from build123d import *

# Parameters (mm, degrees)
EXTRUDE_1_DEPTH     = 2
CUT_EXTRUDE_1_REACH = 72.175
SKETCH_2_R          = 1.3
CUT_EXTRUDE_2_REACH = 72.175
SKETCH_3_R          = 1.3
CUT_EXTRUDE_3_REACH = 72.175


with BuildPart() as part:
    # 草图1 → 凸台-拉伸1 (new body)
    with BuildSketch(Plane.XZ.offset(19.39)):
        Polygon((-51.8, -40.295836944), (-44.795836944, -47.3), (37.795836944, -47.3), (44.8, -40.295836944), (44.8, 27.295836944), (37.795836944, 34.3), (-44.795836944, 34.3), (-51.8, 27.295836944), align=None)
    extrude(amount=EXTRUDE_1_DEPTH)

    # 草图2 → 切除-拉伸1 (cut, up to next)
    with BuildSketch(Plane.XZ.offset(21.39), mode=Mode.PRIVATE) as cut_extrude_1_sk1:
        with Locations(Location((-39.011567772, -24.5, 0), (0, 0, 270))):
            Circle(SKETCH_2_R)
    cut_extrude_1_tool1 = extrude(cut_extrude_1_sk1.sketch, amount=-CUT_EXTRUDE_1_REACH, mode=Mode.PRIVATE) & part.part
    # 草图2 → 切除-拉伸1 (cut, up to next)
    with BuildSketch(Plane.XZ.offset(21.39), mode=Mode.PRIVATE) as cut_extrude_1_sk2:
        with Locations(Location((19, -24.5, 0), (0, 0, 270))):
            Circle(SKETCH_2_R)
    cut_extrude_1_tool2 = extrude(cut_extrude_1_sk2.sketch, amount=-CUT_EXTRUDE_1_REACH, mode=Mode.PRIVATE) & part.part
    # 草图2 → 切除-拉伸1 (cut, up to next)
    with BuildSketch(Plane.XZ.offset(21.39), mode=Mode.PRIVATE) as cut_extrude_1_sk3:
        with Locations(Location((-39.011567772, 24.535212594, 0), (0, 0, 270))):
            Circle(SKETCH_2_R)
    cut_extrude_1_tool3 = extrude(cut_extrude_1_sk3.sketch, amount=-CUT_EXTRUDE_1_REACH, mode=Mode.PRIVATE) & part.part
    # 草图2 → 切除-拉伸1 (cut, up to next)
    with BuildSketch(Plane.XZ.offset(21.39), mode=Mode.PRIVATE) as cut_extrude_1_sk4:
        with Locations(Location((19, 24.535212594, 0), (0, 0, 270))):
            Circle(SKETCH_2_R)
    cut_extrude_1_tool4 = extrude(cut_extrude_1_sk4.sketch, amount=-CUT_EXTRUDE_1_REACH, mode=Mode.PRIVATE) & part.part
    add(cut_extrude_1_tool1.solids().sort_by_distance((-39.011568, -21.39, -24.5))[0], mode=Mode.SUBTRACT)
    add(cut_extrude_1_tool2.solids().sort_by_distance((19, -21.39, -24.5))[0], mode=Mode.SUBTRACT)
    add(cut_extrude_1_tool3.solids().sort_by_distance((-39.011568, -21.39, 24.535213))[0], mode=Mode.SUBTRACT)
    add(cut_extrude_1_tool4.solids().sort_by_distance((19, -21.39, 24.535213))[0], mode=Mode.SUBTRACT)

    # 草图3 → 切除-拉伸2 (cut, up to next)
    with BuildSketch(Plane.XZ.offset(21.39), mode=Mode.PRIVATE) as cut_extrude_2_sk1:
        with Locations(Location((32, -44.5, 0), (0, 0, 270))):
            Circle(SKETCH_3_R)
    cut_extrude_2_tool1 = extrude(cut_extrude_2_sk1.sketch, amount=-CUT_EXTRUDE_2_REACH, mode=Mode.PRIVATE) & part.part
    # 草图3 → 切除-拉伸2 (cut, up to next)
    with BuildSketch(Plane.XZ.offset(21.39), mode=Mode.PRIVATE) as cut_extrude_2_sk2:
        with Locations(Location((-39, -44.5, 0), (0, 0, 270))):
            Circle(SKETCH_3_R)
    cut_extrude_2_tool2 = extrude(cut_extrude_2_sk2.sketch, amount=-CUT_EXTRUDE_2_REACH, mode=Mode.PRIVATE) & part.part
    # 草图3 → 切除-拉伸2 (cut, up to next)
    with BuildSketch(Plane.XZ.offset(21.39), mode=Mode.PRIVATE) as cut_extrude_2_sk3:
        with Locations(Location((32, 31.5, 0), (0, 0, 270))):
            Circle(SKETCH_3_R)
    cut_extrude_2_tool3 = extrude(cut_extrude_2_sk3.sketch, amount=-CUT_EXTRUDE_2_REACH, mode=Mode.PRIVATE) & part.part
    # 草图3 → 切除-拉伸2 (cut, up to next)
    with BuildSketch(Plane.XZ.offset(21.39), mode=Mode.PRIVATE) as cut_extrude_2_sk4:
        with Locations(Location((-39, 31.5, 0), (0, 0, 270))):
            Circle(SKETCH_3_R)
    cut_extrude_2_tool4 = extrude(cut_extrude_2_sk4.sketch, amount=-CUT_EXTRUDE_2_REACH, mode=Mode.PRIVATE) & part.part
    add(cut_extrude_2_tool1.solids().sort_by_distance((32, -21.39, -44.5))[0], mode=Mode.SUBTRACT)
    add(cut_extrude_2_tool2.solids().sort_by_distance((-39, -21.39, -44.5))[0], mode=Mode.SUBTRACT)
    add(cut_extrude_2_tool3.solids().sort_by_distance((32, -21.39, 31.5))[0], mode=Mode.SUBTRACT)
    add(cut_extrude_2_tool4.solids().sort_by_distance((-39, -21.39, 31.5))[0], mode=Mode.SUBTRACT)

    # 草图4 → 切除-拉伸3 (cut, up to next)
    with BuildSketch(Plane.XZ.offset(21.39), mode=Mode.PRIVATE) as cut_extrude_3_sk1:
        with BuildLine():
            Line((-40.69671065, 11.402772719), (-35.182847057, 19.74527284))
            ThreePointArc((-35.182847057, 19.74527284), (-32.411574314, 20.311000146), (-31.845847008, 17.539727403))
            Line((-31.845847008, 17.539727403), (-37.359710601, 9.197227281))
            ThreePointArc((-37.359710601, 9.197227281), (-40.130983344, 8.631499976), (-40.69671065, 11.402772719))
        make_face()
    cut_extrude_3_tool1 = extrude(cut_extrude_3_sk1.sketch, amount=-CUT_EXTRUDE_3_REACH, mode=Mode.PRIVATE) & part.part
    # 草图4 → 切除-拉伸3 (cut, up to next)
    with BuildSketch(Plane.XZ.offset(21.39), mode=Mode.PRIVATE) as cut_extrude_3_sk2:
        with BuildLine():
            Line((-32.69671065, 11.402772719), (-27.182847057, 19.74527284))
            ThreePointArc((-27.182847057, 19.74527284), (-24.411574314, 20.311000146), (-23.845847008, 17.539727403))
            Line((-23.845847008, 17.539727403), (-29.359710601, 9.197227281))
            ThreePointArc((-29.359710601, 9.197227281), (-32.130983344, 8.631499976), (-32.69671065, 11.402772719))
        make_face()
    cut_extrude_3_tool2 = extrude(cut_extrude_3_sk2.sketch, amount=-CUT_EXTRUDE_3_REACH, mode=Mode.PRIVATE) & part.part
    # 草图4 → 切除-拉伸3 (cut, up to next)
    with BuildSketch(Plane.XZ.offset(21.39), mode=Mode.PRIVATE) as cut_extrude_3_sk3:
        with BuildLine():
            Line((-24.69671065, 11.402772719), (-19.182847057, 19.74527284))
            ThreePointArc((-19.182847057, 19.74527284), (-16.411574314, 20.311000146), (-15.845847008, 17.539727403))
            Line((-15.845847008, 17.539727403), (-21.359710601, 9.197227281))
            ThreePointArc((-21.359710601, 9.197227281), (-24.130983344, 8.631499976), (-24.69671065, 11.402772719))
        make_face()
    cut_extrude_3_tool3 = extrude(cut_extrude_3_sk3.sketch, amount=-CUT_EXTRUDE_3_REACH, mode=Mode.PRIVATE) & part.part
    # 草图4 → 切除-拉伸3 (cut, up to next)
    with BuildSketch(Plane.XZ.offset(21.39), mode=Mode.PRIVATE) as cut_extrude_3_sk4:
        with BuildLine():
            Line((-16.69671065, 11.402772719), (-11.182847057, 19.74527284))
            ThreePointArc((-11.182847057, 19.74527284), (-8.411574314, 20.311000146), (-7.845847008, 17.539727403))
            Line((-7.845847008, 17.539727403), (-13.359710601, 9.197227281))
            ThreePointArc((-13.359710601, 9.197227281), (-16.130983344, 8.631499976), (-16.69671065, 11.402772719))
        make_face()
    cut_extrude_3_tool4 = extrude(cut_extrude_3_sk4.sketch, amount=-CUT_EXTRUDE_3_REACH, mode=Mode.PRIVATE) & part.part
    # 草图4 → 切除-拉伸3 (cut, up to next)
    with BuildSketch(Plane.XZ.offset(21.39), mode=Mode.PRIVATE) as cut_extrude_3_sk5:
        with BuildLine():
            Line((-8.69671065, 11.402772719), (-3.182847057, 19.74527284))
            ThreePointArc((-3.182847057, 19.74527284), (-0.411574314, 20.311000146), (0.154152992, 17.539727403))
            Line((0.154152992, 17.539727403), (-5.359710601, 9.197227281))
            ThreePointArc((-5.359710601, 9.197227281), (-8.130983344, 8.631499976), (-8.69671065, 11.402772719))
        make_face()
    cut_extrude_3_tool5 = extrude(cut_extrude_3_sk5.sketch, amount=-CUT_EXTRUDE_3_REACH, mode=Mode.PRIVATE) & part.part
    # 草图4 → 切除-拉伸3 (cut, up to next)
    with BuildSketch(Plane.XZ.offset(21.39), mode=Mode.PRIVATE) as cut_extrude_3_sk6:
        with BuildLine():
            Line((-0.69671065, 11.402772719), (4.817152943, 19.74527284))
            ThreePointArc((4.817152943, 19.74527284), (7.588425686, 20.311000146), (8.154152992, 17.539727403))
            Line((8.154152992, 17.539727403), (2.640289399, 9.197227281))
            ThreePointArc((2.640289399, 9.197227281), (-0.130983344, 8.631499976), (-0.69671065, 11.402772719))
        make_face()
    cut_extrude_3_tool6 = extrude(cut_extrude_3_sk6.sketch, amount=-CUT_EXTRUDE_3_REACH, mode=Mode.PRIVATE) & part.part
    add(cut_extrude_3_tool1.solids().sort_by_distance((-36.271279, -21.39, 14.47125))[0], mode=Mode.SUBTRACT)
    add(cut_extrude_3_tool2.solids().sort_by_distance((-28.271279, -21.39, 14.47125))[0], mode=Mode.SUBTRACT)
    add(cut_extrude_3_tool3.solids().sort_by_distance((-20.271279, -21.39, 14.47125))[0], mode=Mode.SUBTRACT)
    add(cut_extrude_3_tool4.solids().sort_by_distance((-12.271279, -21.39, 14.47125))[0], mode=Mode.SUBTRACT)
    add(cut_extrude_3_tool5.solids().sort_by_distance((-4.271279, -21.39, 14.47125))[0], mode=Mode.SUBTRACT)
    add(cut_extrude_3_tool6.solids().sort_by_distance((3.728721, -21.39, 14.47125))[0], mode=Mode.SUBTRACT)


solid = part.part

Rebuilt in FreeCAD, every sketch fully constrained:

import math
import FreeCAD as App
import Part
import Sketcher
from FreeCAD import Vector
Q = App.Units.Quantity


def add_polygon(sketch, points):
    """Adds a closed chain of lines whose ends are joined by coincident constraints."""
    first, n = sketch.GeometryCount, len(points)
    for a, b in zip(points, points[1:] + points[:1]):
        sketch.addGeometry(Part.LineSegment(App.Vector(*a, 0), App.Vector(*b, 0)), False)
    for i in range(n):
        sketch.addConstraint(Sketcher.Constraint("Coincident", first + i, 2, first + (i + 1) % n, 1))

doc = App.newDocument("Part")
body = doc.addObject("PartDesign::Body", "Body")

# Sketch on XZ plane
sketch1 = doc.addObject("Sketcher::SketchObject", "Sketch")
body.addObject(sketch1)
sketch1.AttachmentSupport = (doc.XZ_Plane, [""])
sketch1.MapMode = "FlatFace"
sketch1.AttachmentOffset = App.Placement(Vector(0, 0, 19.39), App.Rotation())
add_polygon(sketch1, [(-52, -40), (-45, -47), (38, -47), (45, -40), (45, 27), (38, 34), (-45, 34), (-52, 27)])  # lines 0-7
sketch1.addConstraint(Sketcher.Constraint("Horizontal", 1))
sketch1.addConstraint(Sketcher.Constraint("Vertical", 3))
sketch1.addConstraint(Sketcher.Constraint("Horizontal", 5))
sketch1.addConstraint(Sketcher.Constraint("Vertical", 7))
sketch1.addConstraint(Sketcher.Constraint("Perpendicular", 0, 2))
sketch1.addConstraint(Sketcher.Constraint("Perpendicular", 2, 4))
sketch1.addConstraint(Sketcher.Constraint("Perpendicular", 4, 6))
sketch1.addConstraint(Sketcher.Constraint("Horizontal", 3, 2, 6, 2))
sketch1.addConstraint(Sketcher.Constraint("Horizontal", 2, 2, 7, 2))
sketch1.addConstraint(Sketcher.Constraint("Vertical", 1, 2, 4, 2))
sketch1.addConstraint(Sketcher.Constraint("Vertical", 0, 2, 5, 2))
sketch1.addConstraint(Sketcher.Constraint("DistanceY", 0, 2, -1, 1, Q("47.3 mm")))
sketch1.addConstraint(Sketcher.Constraint("DistanceX", -1, 1, 2, 2, Q("44.8 mm")))
sketch1.addConstraint(Sketcher.Constraint("DistanceY", -1, 1, 4, 2, Q("34.3 mm")))
sketch1.addConstraint(Sketcher.Constraint("DistanceX", 6, 2, -1, 1, Q("51.8 mm")))
sketch1.addConstraint(Sketcher.Constraint("DistanceX", 1, 1, 1, 2, Q("82.591674 mm")))
pad1 = doc.addObject("PartDesign::Pad", "Pad")
body.addObject(pad1)
pad1.Profile = sketch1
pad1.Length = 2

# Sketch on XZ plane
sketch2 = doc.addObject("Sketcher::SketchObject", "Sketch001")
body.addObject(sketch2)
sketch2.AttachmentSupport = (doc.XZ_Plane, [""])
sketch2.MapMode = "FlatFace"
sketch2.AttachmentOffset = App.Placement(Vector(0, 0, 21.39), App.Rotation())
sketch2.addGeometry(Part.Circle(Vector(-39, -24.5, 0), Vector(0, 0, 1), 1.3), False)
sketch2.addConstraint(Sketcher.Constraint("Diameter", 0, Q("2.6 mm")))
sketch2.addConstraint(Sketcher.Constraint("DistanceY", 0, 3, -1, 1, Q("24.5 mm")))
sketch2.addConstraint(Sketcher.Constraint("DistanceX", 0, 3, -1, 1, Q("39.011568 mm")))
pocket1 = doc.addObject("PartDesign::Pocket", "Pocket")
body.addObject(pocket1)
pocket1.Profile = sketch2
pocket1.Type = "UpToFirst"

# Sketch on XZ plane
sketch3 = doc.addObject("Sketcher::SketchObject", "Sketch002")
body.addObject(sketch3)
sketch3.AttachmentSupport = (doc.XZ_Plane, [""])
sketch3.MapMode = "FlatFace"
sketch3.AttachmentOffset = App.Placement(Vector(0, 0, 21.39), App.Rotation())
sketch3.addGeometry(Part.Circle(Vector(19, -24.5, 0), Vector(0, 0, 1), 1.3), False)
sketch3.addConstraint(Sketcher.Constraint("Diameter", 0, Q("2.6 mm")))
sketch3.addConstraint(Sketcher.Constraint("DistanceX", -1, 1, 0, 3, Q("19 mm")))
sketch3.addConstraint(Sketcher.Constraint("DistanceY", 0, 3, -1, 1, Q("24.5 mm")))
pocket2 = doc.addObject("PartDesign::Pocket", "Pocket001")
body.addObject(pocket2)
pocket2.Profile = sketch3
pocket2.Type = "UpToFirst"

# Sketch on XZ plane
sketch4 = doc.addObject("Sketcher::SketchObject", "Sketch003")
body.addObject(sketch4)
sketch4.AttachmentSupport = (doc.XZ_Plane, [""])
sketch4.MapMode = "FlatFace"
sketch4.AttachmentOffset = App.Placement(Vector(0, 0, 21.39), App.Rotation())
sketch4.addGeometry(Part.Circle(Vector(-39, 24.5, 0), Vector(0, 0, 1), 1.3), False)
sketch4.addConstraint(Sketcher.Constraint("Diameter", 0, Q("2.6 mm")))
sketch4.addConstraint(Sketcher.Constraint("DistanceX", 0, 3, -1, 1, Q("39.011568 mm")))
sketch4.addConstraint(Sketcher.Constraint("DistanceY", -1, 1, 0, 3, Q("24.535213 mm")))
pocket3 = doc.addObject("PartDesign::Pocket", "Pocket002")
body.addObject(pocket3)
pocket3.Profile = sketch4
pocket3.Type = "UpToFirst"

# Sketch on XZ plane
sketch5 = doc.addObject("Sketcher::SketchObject", "Sketch004")
body.addObject(sketch5)
sketch5.AttachmentSupport = (doc.XZ_Plane, [""])
sketch5.MapMode = "FlatFace"
sketch5.AttachmentOffset = App.Placement(Vector(0, 0, 21.39), App.Rotation())
sketch5.addGeometry(Part.Circle(Vector(19, 24.5, 0), Vector(0, 0, 1), 1.3), False)
sketch5.addConstraint(Sketcher.Constraint("Diameter", 0, Q("2.6 mm")))
sketch5.addConstraint(Sketcher.Constraint("DistanceX", -1, 1, 0, 3, Q("19 mm")))
sketch5.addConstraint(Sketcher.Constraint("DistanceY", -1, 1, 0, 3, Q("24.535213 mm")))
pocket4 = doc.addObject("PartDesign::Pocket", "Pocket003")
body.addObject(pocket4)
pocket4.Profile = sketch5
pocket4.Type = "UpToFirst"

# Sketch on XZ plane
sketch6 = doc.addObject("Sketcher::SketchObject", "Sketch005")
body.addObject(sketch6)
sketch6.AttachmentSupport = (doc.XZ_Plane, [""])
sketch6.MapMode = "FlatFace"
sketch6.AttachmentOffset = App.Placement(Vector(0, 0, 21.39), App.Rotation())
sketch6.addGeometry(Part.Circle(Vector(32, -44.5, 0), Vector(0, 0, 1), 1.3), False)
sketch6.addConstraint(Sketcher.Constraint("Diameter", 0, Q("2.6 mm")))
sketch6.addConstraint(Sketcher.Constraint("DistanceX", -1, 1, 0, 3, Q("32 mm")))
sketch6.addConstraint(Sketcher.Constraint("DistanceY", 0, 3, -1, 1, Q("44.5 mm")))
pocket5 = doc.addObject("PartDesign::Pocket", "Pocket004")
body.addObject(pocket5)
pocket5.Profile = sketch6
pocket5.Type = "UpToFirst"

# Sketch on XZ plane
sketch7 = doc.addObject("Sketcher::SketchObject", "Sketch006")
body.addObject(sketch7)
sketch7.AttachmentSupport = (doc.XZ_Plane, [""])
sketch7.MapMode = "FlatFace"
sketch7.AttachmentOffset = App.Placement(Vector(0, 0, 21.39), App.Rotation())
sketch7.addGeometry(Part.Circle(Vector(-39, -44.5, 0), Vector(0, 0, 1), 1.3), False)
sketch7.addConstraint(Sketcher.Constraint("Diameter", 0, Q("2.6 mm")))
sketch7.addConstraint(Sketcher.Constraint("DistanceX", 0, 3, -1, 1, Q("39 mm")))
sketch7.addConstraint(Sketcher.Constraint("DistanceY", 0, 3, -1, 1, Q("44.5 mm")))
pocket6 = doc.addObject("PartDesign::Pocket", "Pocket005")
body.addObject(pocket6)
pocket6.Profile = sketch7
pocket6.Type = "UpToFirst"

# Sketch on XZ plane
sketch8 = doc.addObject("Sketcher::SketchObject", "Sketch007")
body.addObject(sketch8)
sketch8.AttachmentSupport = (doc.XZ_Plane, [""])
sketch8.MapMode = "FlatFace"
sketch8.AttachmentOffset = App.Placement(Vector(0, 0, 21.39), App.Rotation())
sketch8.addGeometry(Part.Circle(Vector(32, 31.5, 0), Vector(0, 0, 1), 1.3), False)
sketch8.addConstraint(Sketcher.Constraint("Diameter", 0, Q("2.6 mm")))
sketch8.addConstraint(Sketcher.Constraint("DistanceX", -1, 1, 0, 3, Q("32 mm")))
sketch8.addConstraint(Sketcher.Constraint("DistanceY", -1, 1, 0, 3, Q("31.5 mm")))
pocket7 = doc.addObject("PartDesign::Pocket", "Pocket006")
body.addObject(pocket7)
pocket7.Profile = sketch8
pocket7.Type = "UpToFirst"

# Sketch on XZ plane
sketch9 = doc.addObject("Sketcher::SketchObject", "Sketch008")
body.addObject(sketch9)
sketch9.AttachmentSupport = (doc.XZ_Plane, [""])
sketch9.MapMode = "FlatFace"
sketch9.AttachmentOffset = App.Placement(Vector(0, 0, 21.39), App.Rotation())
sketch9.addGeometry(Part.Circle(Vector(-39, 31.5, 0), Vector(0, 0, 1), 1.3), False)
sketch9.addConstraint(Sketcher.Constraint("Diameter", 0, Q("2.6 mm")))
sketch9.addConstraint(Sketcher.Constraint("DistanceX", 0, 3, -1, 1, Q("39 mm")))
sketch9.addConstraint(Sketcher.Constraint("DistanceY", -1, 1, 0, 3, Q("31.5 mm")))
pocket8 = doc.addObject("PartDesign::Pocket", "Pocket007")
body.addObject(pocket8)
pocket8.Profile = sketch9
pocket8.Type = "UpToFirst"

# Sketch on XZ plane
sketch10 = doc.addObject("Sketcher::SketchObject", "Sketch009")
body.addObject(sketch10)
sketch10.AttachmentSupport = (doc.XZ_Plane, [""])
sketch10.MapMode = "FlatFace"
sketch10.AttachmentOffset = App.Placement(Vector(0, 0, 21.39), App.Rotation())
sketch10.addGeometry(Part.LineSegment(Vector(-35.2, 19.7, 0), Vector(-40.7, 11.4, 0)), False)
sketch10.addGeometry(Part.ArcOfCircle(Part.Circle(Vector(-39, 10.3, 0), Vector(0, 0, 1), 2), math.radians(147), math.radians(327)), False)
sketch10.addGeometry(Part.LineSegment(Vector(-37.4, 9.2, 0), Vector(-31.8, 17.5, 0)), False)
sketch10.addGeometry(Part.ArcOfCircle(Part.Circle(Vector(-33.5, 18.6, 0), Vector(0, 0, 1), 2), math.radians(-33), math.radians(147)), False)
sketch10.addConstraint(Sketcher.Constraint("Tangent", 0, 2, 1, 1))
sketch10.addConstraint(Sketcher.Constraint("Tangent", 1, 2, 2, 1))
sketch10.addConstraint(Sketcher.Constraint("Tangent", 2, 2, 3, 1))
sketch10.addConstraint(Sketcher.Constraint("Tangent", 3, 2, 0, 1))
sketch10.addConstraint(Sketcher.Constraint("Equal", 1, 3))
sketch10.addConstraint(Sketcher.Constraint("Radius", 1, Q("2 mm")))
sketch10.addConstraint(Sketcher.Constraint("Distance", 0, Q("10 mm")))
sketch10.addConstraint(Sketcher.Constraint("DistanceY", -1, 1, 1, 3, Q("10.3 mm")))
sketch10.addConstraint(Sketcher.Constraint("DistanceX", 0, 2, 1, 2, Q("3.337 mm")))
sketch10.addConstraint(Sketcher.Constraint("DistanceX", 1, 3, -1, 1, Q("39.028211 mm")))
pocket9 = doc.addObject("PartDesign::Pocket", "Pocket008")
body.addObject(pocket9)
pocket9.Profile = sketch10
pocket9.Type = "UpToFirst"

# Sketch on XZ plane
sketch11 = doc.addObject("Sketcher::SketchObject", "Sketch010")
body.addObject(sketch11)
sketch11.AttachmentSupport = (doc.XZ_Plane, [""])
sketch11.MapMode = "FlatFace"
sketch11.AttachmentOffset = App.Placement(Vector(0, 0, 21.39), App.Rotation())
sketch11.addGeometry(Part.LineSegment(Vector(-27.2, 19.7, 0), Vector(-32.7, 11.4, 0)), False)
sketch11.addGeometry(Part.ArcOfCircle(Part.Circle(Vector(-31, 10.3, 0), Vector(0, 0, 1), 2), math.radians(147), math.radians(327)), False)
sketch11.addGeometry(Part.LineSegment(Vector(-29.4, 9.2, 0), Vector(-23.8, 17.5, 0)), False)
sketch11.addGeometry(Part.ArcOfCircle(Part.Circle(Vector(-25.5, 18.6, 0), Vector(0, 0, 1), 2), math.radians(-33), math.radians(147)), False)
sketch11.addConstraint(Sketcher.Constraint("Tangent", 0, 2, 1, 1))
sketch11.addConstraint(Sketcher.Constraint("Tangent", 1, 2, 2, 1))
sketch11.addConstraint(Sketcher.Constraint("Tangent", 2, 2, 3, 1))
sketch11.addConstraint(Sketcher.Constraint("Tangent", 3, 2, 0, 1))
sketch11.addConstraint(Sketcher.Constraint("Equal", 1, 3))
sketch11.addConstraint(Sketcher.Constraint("Radius", 1, Q("2 mm")))
sketch11.addConstraint(Sketcher.Constraint("Distance", 0, Q("10 mm")))
sketch11.addConstraint(Sketcher.Constraint("DistanceY", -1, 1, 1, 3, Q("10.3 mm")))
sketch11.addConstraint(Sketcher.Constraint("DistanceX", 0, 2, 1, 2, Q("3.337 mm")))
sketch11.addConstraint(Sketcher.Constraint("DistanceX", 1, 3, -1, 1, Q("31.028211 mm")))
pocket10 = doc.addObject("PartDesign::Pocket", "Pocket009")
body.addObject(pocket10)
pocket10.Profile = sketch11
pocket10.Type = "UpToFirst"

# Sketch on XZ plane
sketch12 = doc.addObject("Sketcher::SketchObject", "Sketch011")
body.addObject(sketch12)
sketch12.AttachmentSupport = (doc.XZ_Plane, [""])
sketch12.MapMode = "FlatFace"
sketch12.AttachmentOffset = App.Placement(Vector(0, 0, 21.39), App.Rotation())
sketch12.addGeometry(Part.LineSegment(Vector(-19.2, 19.7, 0), Vector(-24.7, 11.4, 0)), False)
sketch12.addGeometry(Part.ArcOfCircle(Part.Circle(Vector(-23, 10.3, 0), Vector(0, 0, 1), 2), math.radians(147), math.radians(327)), False)
sketch12.addGeometry(Part.LineSegment(Vector(-21.4, 9.2, 0), Vector(-15.8, 17.5, 0)), False)
sketch12.addGeometry(Part.ArcOfCircle(Part.Circle(Vector(-17.5, 18.6, 0), Vector(0, 0, 1), 2), math.radians(-33), math.radians(147)), False)
sketch12.addConstraint(Sketcher.Constraint("Tangent", 0, 2, 1, 1))
sketch12.addConstraint(Sketcher.Constraint("Tangent", 1, 2, 2, 1))
sketch12.addConstraint(Sketcher.Constraint("Tangent", 2, 2, 3, 1))
sketch12.addConstraint(Sketcher.Constraint("Tangent", 3, 2, 0, 1))
sketch12.addConstraint(Sketcher.Constraint("Equal", 1, 3))
sketch12.addConstraint(Sketcher.Constraint("Radius", 1, Q("2 mm")))
sketch12.addConstraint(Sketcher.Constraint("Distance", 0, Q("10 mm")))
sketch12.addConstraint(Sketcher.Constraint("DistanceY", -1, 1, 1, 3, Q("10.3 mm")))
sketch12.addConstraint(Sketcher.Constraint("DistanceX", 0, 2, 1, 2, Q("3.337 mm")))
sketch12.addConstraint(Sketcher.Constraint("DistanceX", 1, 3, -1, 1, Q("23.028211 mm")))
pocket11 = doc.addObject("PartDesign::Pocket", "Pocket010")
body.addObject(pocket11)
pocket11.Profile = sketch12
pocket11.Type = "UpToFirst"

# Sketch on XZ plane
sketch13 = doc.addObject("Sketcher::SketchObject", "Sketch012")
body.addObject(sketch13)
sketch13.AttachmentSupport = (doc.XZ_Plane, [""])
sketch13.MapMode = "FlatFace"
sketch13.AttachmentOffset = App.Placement(Vector(0, 0, 21.39), App.Rotation())
sketch13.addGeometry(Part.LineSegment(Vector(-11.2, 19.7, 0), Vector(-16.7, 11.4, 0)), False)
sketch13.addGeometry(Part.ArcOfCircle(Part.Circle(Vector(-15, 10.3, 0), Vector(0, 0, 1), 2), math.radians(147), math.radians(327)), False)
sketch13.addGeometry(Part.LineSegment(Vector(-13.4, 9.2, 0), Vector(-7.8, 17.5, 0)), False)
sketch13.addGeometry(Part.ArcOfCircle(Part.Circle(Vector(-9.5, 18.6, 0), Vector(0, 0, 1), 2), math.radians(-33), math.radians(147)), False)
sketch13.addConstraint(Sketcher.Constraint("Tangent", 0, 2, 1, 1))
sketch13.addConstraint(Sketcher.Constraint("Tangent", 1, 2, 2, 1))
sketch13.addConstraint(Sketcher.Constraint("Tangent", 2, 2, 3, 1))
sketch13.addConstraint(Sketcher.Constraint("Tangent", 3, 2, 0, 1))
sketch13.addConstraint(Sketcher.Constraint("Equal", 1, 3))
sketch13.addConstraint(Sketcher.Constraint("Radius", 1, Q("2 mm")))
sketch13.addConstraint(Sketcher.Constraint("Distance", 0, Q("10 mm")))
sketch13.addConstraint(Sketcher.Constraint("DistanceY", -1, 1, 1, 3, Q("10.3 mm")))
sketch13.addConstraint(Sketcher.Constraint("DistanceX", 0, 2, 1, 2, Q("3.337 mm")))
sketch13.addConstraint(Sketcher.Constraint("DistanceX", 1, 3, -1, 1, Q("15.028211 mm")))
pocket12 = doc.addObject("PartDesign::Pocket", "Pocket011")
body.addObject(pocket12)
pocket12.Profile = sketch13
pocket12.Type = "UpToFirst"

# Sketch on XZ plane
sketch14 = doc.addObject("Sketcher::SketchObject", "Sketch013")
body.addObject(sketch14)
sketch14.AttachmentSupport = (doc.XZ_Plane, [""])
sketch14.MapMode = "FlatFace"
sketch14.AttachmentOffset = App.Placement(Vector(0, 0, 21.39), App.Rotation())
sketch14.addGeometry(Part.LineSegment(Vector(-3.2, 19.7, 0), Vector(-8.7, 11.4, 0)), False)
sketch14.addGeometry(Part.ArcOfCircle(Part.Circle(Vector(-7, 10.3, 0), Vector(0, 0, 1), 2), math.radians(147), math.radians(327)), False)
sketch14.addGeometry(Part.LineSegment(Vector(-5.4, 9.2, 0), Vector(0.2, 17.5, 0)), False)
sketch14.addGeometry(Part.ArcOfCircle(Part.Circle(Vector(-1.5, 18.6, 0), Vector(0, 0, 1), 2), math.radians(-33), math.radians(147)), False)
sketch14.addConstraint(Sketcher.Constraint("Tangent", 0, 2, 1, 1))
sketch14.addConstraint(Sketcher.Constraint("Tangent", 1, 2, 2, 1))
sketch14.addConstraint(Sketcher.Constraint("Tangent", 2, 2, 3, 1))
sketch14.addConstraint(Sketcher.Constraint("Tangent", 3, 2, 0, 1))
sketch14.addConstraint(Sketcher.Constraint("Equal", 1, 3))
sketch14.addConstraint(Sketcher.Constraint("Radius", 1, Q("2 mm")))
sketch14.addConstraint(Sketcher.Constraint("Distance", 0, Q("10 mm")))
sketch14.addConstraint(Sketcher.Constraint("DistanceY", -1, 1, 1, 3, Q("10.3 mm")))
sketch14.addConstraint(Sketcher.Constraint("DistanceX", 0, 2, 1, 2, Q("3.337 mm")))
sketch14.addConstraint(Sketcher.Constraint("DistanceX", 1, 3, -1, 1, Q("7.028211 mm")))
pocket13 = doc.addObject("PartDesign::Pocket", "Pocket012")
body.addObject(pocket13)
pocket13.Profile = sketch14
pocket13.Type = "UpToFirst"

# Sketch on XZ plane
sketch15 = doc.addObject("Sketcher::SketchObject", "Sketch014")
body.addObject(sketch15)
sketch15.AttachmentSupport = (doc.XZ_Plane, [""])
sketch15.MapMode = "FlatFace"
sketch15.AttachmentOffset = App.Placement(Vector(0, 0, 21.39), App.Rotation())
sketch15.addGeometry(Part.LineSegment(Vector(4.8, 19.7, 0), Vector(-0.7, 11.4, 0)), False)
sketch15.addGeometry(Part.ArcOfCircle(Part.Circle(Vector(1, 10.3, 0), Vector(0, 0, 1), 2), math.radians(147), math.radians(327)), False)
sketch15.addGeometry(Part.LineSegment(Vector(2.6, 9.2, 0), Vector(8.2, 17.5, 0)), False)
sketch15.addGeometry(Part.ArcOfCircle(Part.Circle(Vector(6.5, 18.6, 0), Vector(0, 0, 1), 2), math.radians(-33), math.radians(147)), False)
sketch15.addConstraint(Sketcher.Constraint("Tangent", 0, 2, 1, 1))
sketch15.addConstraint(Sketcher.Constraint("Tangent", 1, 2, 2, 1))
sketch15.addConstraint(Sketcher.Constraint("Tangent", 2, 2, 3, 1))
sketch15.addConstraint(Sketcher.Constraint("Tangent", 3, 2, 0, 1))
sketch15.addConstraint(Sketcher.Constraint("Equal", 1, 3))
sketch15.addConstraint(Sketcher.Constraint("Radius", 1, Q("2 mm")))
sketch15.addConstraint(Sketcher.Constraint("Distance", 0, Q("10 mm")))
sketch15.addConstraint(Sketcher.Constraint("DistanceY", -1, 1, 1, 3, Q("10.3 mm")))
sketch15.addConstraint(Sketcher.Constraint("DistanceX", 0, 2, 1, 2, Q("3.337 mm")))
sketch15.addConstraint(Sketcher.Constraint("DistanceX", -1, 1, 1, 3, Q("0.971789 mm")))
pocket14 = doc.addObject("PartDesign::Pocket", "Pocket013")
body.addObject(pocket14)
pocket14.Profile = sketch15
pocket14.Type = "UpToFirst"

doc.recompute()
